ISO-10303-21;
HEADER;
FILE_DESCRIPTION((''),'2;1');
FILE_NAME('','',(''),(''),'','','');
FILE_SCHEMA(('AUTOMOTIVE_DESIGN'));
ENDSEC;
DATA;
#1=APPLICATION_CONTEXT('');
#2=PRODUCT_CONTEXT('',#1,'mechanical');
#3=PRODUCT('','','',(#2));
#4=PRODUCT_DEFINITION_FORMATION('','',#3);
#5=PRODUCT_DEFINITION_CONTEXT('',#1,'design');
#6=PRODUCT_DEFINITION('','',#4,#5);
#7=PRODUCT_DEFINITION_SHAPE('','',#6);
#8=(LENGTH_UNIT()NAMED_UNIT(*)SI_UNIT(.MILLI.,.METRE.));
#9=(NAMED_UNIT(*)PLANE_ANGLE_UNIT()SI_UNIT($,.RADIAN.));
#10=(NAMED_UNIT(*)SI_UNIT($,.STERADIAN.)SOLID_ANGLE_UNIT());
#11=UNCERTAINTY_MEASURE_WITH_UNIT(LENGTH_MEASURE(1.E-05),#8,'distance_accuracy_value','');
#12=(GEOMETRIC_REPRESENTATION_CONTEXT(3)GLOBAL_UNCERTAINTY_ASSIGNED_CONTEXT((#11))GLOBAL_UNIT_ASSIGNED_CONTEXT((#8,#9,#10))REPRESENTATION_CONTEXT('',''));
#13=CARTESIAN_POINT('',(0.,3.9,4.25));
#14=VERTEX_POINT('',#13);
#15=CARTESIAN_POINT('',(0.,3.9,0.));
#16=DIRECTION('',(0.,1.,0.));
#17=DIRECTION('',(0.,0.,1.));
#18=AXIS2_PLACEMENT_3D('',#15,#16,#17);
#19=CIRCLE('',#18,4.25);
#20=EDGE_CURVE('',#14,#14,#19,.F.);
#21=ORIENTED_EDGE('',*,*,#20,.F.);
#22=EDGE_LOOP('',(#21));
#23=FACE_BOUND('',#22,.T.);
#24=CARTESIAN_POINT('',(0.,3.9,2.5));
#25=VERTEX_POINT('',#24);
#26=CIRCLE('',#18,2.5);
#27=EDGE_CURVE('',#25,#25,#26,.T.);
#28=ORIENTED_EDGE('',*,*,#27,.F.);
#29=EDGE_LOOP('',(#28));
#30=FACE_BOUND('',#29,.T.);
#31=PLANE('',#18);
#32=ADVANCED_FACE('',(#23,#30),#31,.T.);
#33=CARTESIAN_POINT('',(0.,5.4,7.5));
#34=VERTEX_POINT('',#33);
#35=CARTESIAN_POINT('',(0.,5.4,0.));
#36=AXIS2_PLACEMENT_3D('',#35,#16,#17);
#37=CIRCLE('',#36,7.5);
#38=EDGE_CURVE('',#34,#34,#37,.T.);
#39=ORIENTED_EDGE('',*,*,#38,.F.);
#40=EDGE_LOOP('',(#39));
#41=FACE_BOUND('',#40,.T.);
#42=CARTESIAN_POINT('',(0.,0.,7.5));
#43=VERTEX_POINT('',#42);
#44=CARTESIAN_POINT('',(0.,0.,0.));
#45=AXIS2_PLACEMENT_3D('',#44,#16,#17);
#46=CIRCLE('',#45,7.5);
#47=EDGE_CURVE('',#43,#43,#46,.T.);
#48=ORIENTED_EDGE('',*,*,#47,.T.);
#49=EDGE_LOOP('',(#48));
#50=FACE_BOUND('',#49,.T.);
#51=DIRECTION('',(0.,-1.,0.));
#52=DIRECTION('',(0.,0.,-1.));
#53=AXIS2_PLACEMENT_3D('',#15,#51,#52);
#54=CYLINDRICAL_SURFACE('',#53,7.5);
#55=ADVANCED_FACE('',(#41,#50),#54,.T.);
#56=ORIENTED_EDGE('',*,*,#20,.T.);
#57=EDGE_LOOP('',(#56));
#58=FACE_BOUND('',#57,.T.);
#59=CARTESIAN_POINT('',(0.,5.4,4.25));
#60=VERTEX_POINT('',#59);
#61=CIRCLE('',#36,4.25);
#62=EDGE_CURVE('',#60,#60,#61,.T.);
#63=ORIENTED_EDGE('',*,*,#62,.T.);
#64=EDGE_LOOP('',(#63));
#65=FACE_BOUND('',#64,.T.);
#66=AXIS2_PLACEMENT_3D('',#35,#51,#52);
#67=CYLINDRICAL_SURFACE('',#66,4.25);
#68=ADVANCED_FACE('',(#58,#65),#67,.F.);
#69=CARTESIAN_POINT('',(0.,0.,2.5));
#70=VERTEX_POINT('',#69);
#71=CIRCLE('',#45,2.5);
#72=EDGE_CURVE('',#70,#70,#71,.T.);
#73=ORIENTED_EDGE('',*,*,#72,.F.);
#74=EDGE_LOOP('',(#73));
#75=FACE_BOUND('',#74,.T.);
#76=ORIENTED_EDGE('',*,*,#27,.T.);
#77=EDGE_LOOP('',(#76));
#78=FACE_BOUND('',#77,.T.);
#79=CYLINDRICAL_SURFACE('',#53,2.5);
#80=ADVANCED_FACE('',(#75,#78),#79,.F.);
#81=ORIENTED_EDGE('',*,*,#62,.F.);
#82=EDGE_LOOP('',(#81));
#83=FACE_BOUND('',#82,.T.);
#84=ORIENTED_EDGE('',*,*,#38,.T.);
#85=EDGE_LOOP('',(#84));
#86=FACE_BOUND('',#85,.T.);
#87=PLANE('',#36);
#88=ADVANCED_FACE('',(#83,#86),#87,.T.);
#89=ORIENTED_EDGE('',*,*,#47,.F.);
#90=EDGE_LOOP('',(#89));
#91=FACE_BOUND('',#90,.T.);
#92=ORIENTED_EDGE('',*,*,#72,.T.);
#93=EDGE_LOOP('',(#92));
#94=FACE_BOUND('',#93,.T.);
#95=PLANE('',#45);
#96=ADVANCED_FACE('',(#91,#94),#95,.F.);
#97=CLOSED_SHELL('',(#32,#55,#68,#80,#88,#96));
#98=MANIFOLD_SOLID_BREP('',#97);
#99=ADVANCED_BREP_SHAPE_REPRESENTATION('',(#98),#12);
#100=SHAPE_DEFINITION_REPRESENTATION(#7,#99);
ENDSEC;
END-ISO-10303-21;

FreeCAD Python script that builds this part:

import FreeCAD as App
import Part
import Sketcher

doc = App.newDocument("Part")
body = doc.addObject("PartDesign::Body", "Body")

# Sketch on XZ plane
sketch1 = doc.addObject("Sketcher::SketchObject", "Sketch")
body.addObject(sketch1)
sketch1.AttachmentSupport = (doc.XZ_Plane, [""])
sketch1.MapMode = "FlatFace"
sketch1.addGeometry([
    Part.Circle(App.Vector(0, 0, 0), App.Vector(0, 0, 1), 7.5),
    Part.Circle(App.Vector(0, 0, 0), App.Vector(0, 0, 1), 2.5),
], False)
sketch1.addConstraint([
    Sketcher.Constraint("Coincident", 0, 3, -1, 1),
    Sketcher.Constraint("Coincident", 1, 3, -1, 1),
    Sketcher.Constraint("Diameter", 0, 15.0),
    Sketcher.Constraint("Diameter", 1, 5.0),
])
pad1 = doc.addObject("PartDesign::Pad", "Pad")
body.addObject(pad1)
pad1.Profile = sketch1
pad1.Length = 3.9
pad1.Reversed = True

# Sketch on XZ plane
sketch2 = doc.addObject("Sketcher::SketchObject", "Sketch001")
body.addObject(sketch2)
sketch2.AttachmentSupport = (doc.XZ_Plane, [""])
sketch2.MapMode = "FlatFace"
sketch2.AttachmentOffset = App.Placement(App.Vector(0, 0, -3.9), App.Rotation())
sketch2.addGeometry([
    Part.Circle(App.Vector(0, 0, 0), App.Vector(0, 0, 1), 7.5),
    Part.Circle(App.Vector(0, 0, 0), App.Vector(0, 0, 1), 4.25),
], False)
sketch2.addConstraint([
    Sketcher.Constraint("Coincident", 0, 3, -1, 1),
    Sketcher.Constraint("Coincident", 1, 3, -1, 1),
    Sketcher.Constraint("Diameter", 0, 15.0),
    Sketcher.Constraint("Diameter", 1, 8.5),
])
pad2 = doc.addObject("PartDesign::Pad", "Pad001")
body.addObject(pad2)
pad2.Profile = sketch2
pad2.Length = 1.5
pad2.Reversed = True

doc.recompute()
